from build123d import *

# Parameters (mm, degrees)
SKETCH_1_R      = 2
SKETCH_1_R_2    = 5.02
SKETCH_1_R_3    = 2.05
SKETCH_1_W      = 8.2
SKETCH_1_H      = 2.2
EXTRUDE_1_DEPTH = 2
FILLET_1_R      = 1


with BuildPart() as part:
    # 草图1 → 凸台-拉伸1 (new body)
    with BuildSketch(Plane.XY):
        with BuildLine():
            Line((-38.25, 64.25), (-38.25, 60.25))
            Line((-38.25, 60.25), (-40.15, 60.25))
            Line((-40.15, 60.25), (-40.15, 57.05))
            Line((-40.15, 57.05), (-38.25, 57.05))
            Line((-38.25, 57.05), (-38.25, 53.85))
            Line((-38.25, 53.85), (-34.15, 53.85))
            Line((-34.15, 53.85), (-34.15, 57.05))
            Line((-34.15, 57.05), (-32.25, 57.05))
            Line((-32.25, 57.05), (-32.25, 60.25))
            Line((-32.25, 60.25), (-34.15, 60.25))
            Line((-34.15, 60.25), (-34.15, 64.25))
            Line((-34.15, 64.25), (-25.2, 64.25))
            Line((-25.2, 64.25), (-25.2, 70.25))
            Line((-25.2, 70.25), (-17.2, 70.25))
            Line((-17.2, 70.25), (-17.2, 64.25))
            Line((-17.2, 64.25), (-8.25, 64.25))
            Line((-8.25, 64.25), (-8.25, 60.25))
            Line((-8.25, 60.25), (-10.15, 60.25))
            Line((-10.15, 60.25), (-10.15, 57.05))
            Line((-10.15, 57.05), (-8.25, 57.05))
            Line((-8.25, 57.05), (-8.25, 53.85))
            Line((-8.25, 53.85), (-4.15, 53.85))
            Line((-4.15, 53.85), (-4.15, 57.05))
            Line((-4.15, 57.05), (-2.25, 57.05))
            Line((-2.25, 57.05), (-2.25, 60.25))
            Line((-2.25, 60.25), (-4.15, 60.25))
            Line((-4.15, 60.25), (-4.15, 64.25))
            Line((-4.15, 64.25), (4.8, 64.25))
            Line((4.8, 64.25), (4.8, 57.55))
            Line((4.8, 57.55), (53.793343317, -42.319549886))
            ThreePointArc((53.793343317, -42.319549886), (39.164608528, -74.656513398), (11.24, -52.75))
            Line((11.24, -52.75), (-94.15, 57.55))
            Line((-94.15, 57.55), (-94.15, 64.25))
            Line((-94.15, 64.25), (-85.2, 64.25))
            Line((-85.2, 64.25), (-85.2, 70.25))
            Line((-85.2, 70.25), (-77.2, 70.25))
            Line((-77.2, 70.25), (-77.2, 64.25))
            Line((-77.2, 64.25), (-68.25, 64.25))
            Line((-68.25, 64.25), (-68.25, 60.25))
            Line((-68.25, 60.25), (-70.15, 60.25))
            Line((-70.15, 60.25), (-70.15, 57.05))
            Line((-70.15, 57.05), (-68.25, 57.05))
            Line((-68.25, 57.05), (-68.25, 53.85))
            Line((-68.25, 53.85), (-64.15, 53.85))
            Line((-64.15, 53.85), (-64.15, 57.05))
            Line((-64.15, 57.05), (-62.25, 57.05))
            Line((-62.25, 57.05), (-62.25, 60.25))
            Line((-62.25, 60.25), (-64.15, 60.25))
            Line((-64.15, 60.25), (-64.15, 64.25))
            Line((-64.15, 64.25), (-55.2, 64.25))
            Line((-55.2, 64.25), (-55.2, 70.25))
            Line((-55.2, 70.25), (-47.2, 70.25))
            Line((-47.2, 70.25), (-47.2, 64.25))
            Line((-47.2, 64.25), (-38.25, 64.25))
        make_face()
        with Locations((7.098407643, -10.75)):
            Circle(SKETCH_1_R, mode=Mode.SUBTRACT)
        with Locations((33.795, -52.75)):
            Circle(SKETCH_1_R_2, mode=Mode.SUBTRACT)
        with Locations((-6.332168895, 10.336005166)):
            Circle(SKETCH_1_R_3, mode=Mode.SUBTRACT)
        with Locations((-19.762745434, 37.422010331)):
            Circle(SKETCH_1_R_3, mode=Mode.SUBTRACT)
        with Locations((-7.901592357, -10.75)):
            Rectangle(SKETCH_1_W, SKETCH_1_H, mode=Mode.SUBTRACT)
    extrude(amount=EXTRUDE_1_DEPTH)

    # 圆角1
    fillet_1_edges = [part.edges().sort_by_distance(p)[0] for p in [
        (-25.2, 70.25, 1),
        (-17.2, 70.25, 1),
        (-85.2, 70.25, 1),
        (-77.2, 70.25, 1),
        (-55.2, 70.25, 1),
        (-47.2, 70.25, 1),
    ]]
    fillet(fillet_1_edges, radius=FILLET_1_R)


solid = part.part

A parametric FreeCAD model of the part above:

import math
import FreeCAD as App
import Part
import Sketcher


def edges_at(feature, points):
    """Names of the edges that pass closest to the given points."""
    edges = feature.Shape.Edges
    near = lambda p: min(range(len(edges)), key=lambda i: edges[i].distToShape(Part.Vertex(*p))[0])
    return sorted({f"Edge{near(p) + 1}" for p in points})

doc = App.newDocument("Part")
body = doc.addObject("PartDesign::Body", "Body")

# Sketch on XY plane
sketch1 = body.newObject("Sketcher::SketchObject", "Sketch")
sketch1.AttachmentSupport = (doc.getObject("XY_Plane"), [""])
sketch1.MapMode = "FlatFace"
sketch1.addGeometry([
    Part.LineSegment(App.Vector(-38.2, 60.2, 0), App.Vector(-38.2, 64.2, 0)),  # 0
    Part.LineSegment(App.Vector(-38.2, 64.2, 0), App.Vector(-47.2, 64.2, 0)),  # 1
    Part.LineSegment(App.Vector(-47.2, 64.2, 0), App.Vector(-47.2, 70.2, 0)),  # 2
    Part.LineSegment(App.Vector(-47.2, 70.2, 0), App.Vector(-55.2, 70.2, 0)),  # 3
    Part.LineSegment(App.Vector(-55.2, 70.2, 0), App.Vector(-55.2, 64.2, 0)),  # 4
    Part.LineSegment(App.Vector(-55.2, 64.2, 0), App.Vector(-64.2, 64.2, 0)),  # 5
    Part.LineSegment(App.Vector(-64.2, 64.2, 0), App.Vector(-64.2, 60.2, 0)),  # 6
    Part.LineSegment(App.Vector(-64.2, 60.2, 0), App.Vector(-62.2, 60.2, 0)),  # 7
    Part.LineSegment(App.Vector(-62.2, 60.2, 0), App.Vector(-62.2, 57, 0)),  # 8
    Part.LineSegment(App.Vector(-62.2, 57, 0), App.Vector(-64.2, 57, 0)),  # 9
    Part.LineSegment(App.Vector(-64.2, 57, 0), App.Vector(-64.2, 53.9, 0)),  # 10
    Part.LineSegment(App.Vector(-64.2, 53.9, 0), App.Vector(-68.2, 53.9, 0)),  # 11
    Part.LineSegment(App.Vector(-68.2, 53.9, 0), App.Vector(-68.2, 57, 0)),  # 12
    Part.LineSegment(App.Vector(-68.2, 57, 0), App.Vector(-70.2, 57, 0)),  # 13
    Part.LineSegment(App.Vector(-70.2, 57, 0), App.Vector(-70.2, 60.2, 0)),  # 14
    Part.LineSegment(App.Vector(-70.2, 60.2, 0), App.Vector(-68.2, 60.2, 0)),  # 15
    Part.LineSegment(App.Vector(-68.2, 60.2, 0), App.Vector(-68.2, 64.2, 0)),  # 16
    Part.LineSegment(App.Vector(-68.2, 64.2, 0), App.Vector(-77.2, 64.2, 0)),  # 17
    Part.LineSegment(App.Vector(-77.2, 64.2, 0), App.Vector(-77.2, 70.2, 0)),  # 18
    Part.LineSegment(App.Vector(-77.2, 70.2, 0), App.Vector(-85.2, 70.2, 0)),  # 19
    Part.LineSegment(App.Vector(-85.2, 70.2, 0), App.Vector(-85.2, 64.2, 0)),  # 20
    Part.LineSegment(App.Vector(-85.2, 64.2, 0), App.Vector(-94.2, 64.2, 0)),  # 21
    Part.LineSegment(App.Vector(-94.2, 64.2, 0), App.Vector(-94.2, 57.5, 0)),  # 22
    Part.LineSegment(App.Vector(-94.2, 57.5, 0), App.Vector(11.2, -52.8, 0)),  # 23
    Part.ArcOfCircle(Part.Circle(App.Vector(33.8, -52.8, 0), App.Vector(0, 0, 1), 22.6), math.radians(180), math.radians(388)),  # 24
    Part.LineSegment(App.Vector(53.8, -42.3, 0), App.Vector(4.8, 57.5, 0)),  # 25
    Part.LineSegment(App.Vector(4.8, 57.5, 0), App.Vector(4.8, 64.2, 0)),  # 26
    Part.LineSegment(App.Vector(4.8, 64.2, 0), App.Vector(-4.2, 64.2, 0)),  # 27
    Part.LineSegment(App.Vector(-4.2, 64.2, 0), App.Vector(-4.2, 60.2, 0)),  # 28
    Part.LineSegment(App.Vector(-4.2, 60.2, 0), App.Vector(-2.2, 60.2, 0)),  # 29
    Part.LineSegment(App.Vector(-2.2, 60.2, 0), App.Vector(-2.2, 57, 0)),  # 30
    Part.LineSegment(App.Vector(-2.2, 57, 0), App.Vector(-4.2, 57, 0)),  # 31
    Part.LineSegment(App.Vector(-4.2, 57, 0), App.Vector(-4.2, 53.9, 0)),  # 32
    Part.LineSegment(App.Vector(-4.2, 53.9, 0), App.Vector(-8.2, 53.9, 0)),  # 33
    Part.LineSegment(App.Vector(-8.2, 53.9, 0), App.Vector(-8.2, 57, 0)),  # 34
    Part.LineSegment(App.Vector(-8.2, 57, 0), App.Vector(-10.2, 57, 0)),  # 35
    Part.LineSegment(App.Vector(-10.2, 57, 0), App.Vector(-10.2, 60.2, 0)),  # 36
    Part.LineSegment(App.Vector(-10.2, 60.2, 0), App.Vector(-8.2, 60.2, 0)),  # 37
    Part.LineSegment(App.Vector(-8.2, 60.2, 0), App.Vector(-8.2, 64.2, 0)),  # 38
    Part.LineSegment(App.Vector(-8.2, 64.2, 0), App.Vector(-17.2, 64.2, 0)),  # 39
    Part.LineSegment(App.Vector(-17.2, 64.2, 0), App.Vector(-17.2, 70.2, 0)),  # 40
    Part.LineSegment(App.Vector(-17.2, 70.2, 0), App.Vector(-25.2, 70.2, 0)),  # 41
    Part.LineSegment(App.Vector(-25.2, 70.2, 0), App.Vector(-25.2, 64.2, 0)),  # 42
    Part.LineSegment(App.Vector(-25.2, 64.2, 0), App.Vector(-34.1, 64.2, 0)),  # 43
    Part.LineSegment(App.Vector(-34.1, 64.2, 0), App.Vector(-34.1, 60.2, 0)),  # 44
    Part.LineSegment(App.Vector(-34.1, 60.2, 0), App.Vector(-32.2, 60.2, 0)),  # 45
    Part.LineSegment(App.Vector(-32.2, 60.2, 0), App.Vector(-32.2, 57, 0)),  # 46
    Part.LineSegment(App.Vector(-32.2, 57, 0), App.Vector(-34.1, 57, 0)),  # 47
    Part.LineSegment(App.Vector(-34.1, 57, 0), App.Vector(-34.1, 53.9, 0)),  # 48
    Part.LineSegment(App.Vector(-34.1, 53.9, 0), App.Vector(-38.2, 53.9, 0)),  # 49
    Part.LineSegment(App.Vector(-38.2, 53.9, 0), App.Vector(-38.2, 57, 0)),  # 50
    Part.LineSegment(App.Vector(-38.2, 57, 0), App.Vector(-40.1, 57, 0)),  # 51
    Part.LineSegment(App.Vector(-40.1, 57, 0), App.Vector(-40.1, 60.2, 0)),  # 52
    Part.LineSegment(App.Vector(-40.1, 60.2, 0), App.Vector(-38.2, 60.2, 0)),  # 53
    Part.Circle(App.Vector(33.8, -52.8, 0), App.Vector(0, 0, 1), 5),  # 54
    Part.Circle(App.Vector(7.1, -10.8, 0), App.Vector(0, 0, 1), 2),  # 55
    Part.LineSegment(App.Vector(-12, -11.8, 0), App.Vector(-12, -9.7, 0)),  # 56
    Part.LineSegment(App.Vector(-12, -9.7, 0), App.Vector(-3.8, -9.7, 0)),  # 57
    Part.LineSegment(App.Vector(-3.8, -9.7, 0), App.Vector(-3.8, -11.8, 0)),  # 58
    Part.LineSegment(App.Vector(-3.8, -11.8, 0), App.Vector(-12, -11.8, 0)),  # 59
    Part.Circle(App.Vector(-6.3, 10.3, 0), App.Vector(0, 0, 1), 2),  # 60
    Part.Circle(App.Vector(-19.8, 37.4, 0), App.Vector(0, 0, 1), 2),  # 61
], False)
sketch1.addConstraint([
    Sketcher.Constraint("Coincident", 0, 2, 1, 1),
    Sketcher.Constraint("Coincident", 1, 2, 2, 1),
    Sketcher.Constraint("Coincident", 2, 2, 3, 1),
    Sketcher.Constraint("Coincident", 3, 2, 4, 1),
    Sketcher.Constraint("Coincident", 4, 2, 5, 1),
    Sketcher.Constraint("Coincident", 5, 2, 6, 1),
    Sketcher.Constraint("Coincident", 6, 2, 7, 1),
    Sketcher.Constraint("Coincident", 7, 2, 8, 1),
    Sketcher.Constraint("Coincident", 8, 2, 9, 1),
    Sketcher.Constraint("Coincident", 9, 2, 10, 1),
    Sketcher.Constraint("Coincident", 10, 2, 11, 1),
    Sketcher.Constraint("Coincident", 11, 2, 12, 1),
    Sketcher.Constraint("Coincident", 12, 2, 13, 1),
    Sketcher.Constraint("Coincident", 13, 2, 14, 1),
    Sketcher.Constraint("Coincident", 14, 2, 15, 1),
    Sketcher.Constraint("Coincident", 15, 2, 16, 1),
    Sketcher.Constraint("Coincident", 16, 2, 17, 1),
    Sketcher.Constraint("Coincident", 17, 2, 18, 1),
    Sketcher.Constraint("Coincident", 18, 2, 19, 1),
    Sketcher.Constraint("Coincident", 19, 2, 20, 1),
    Sketcher.Constraint("Coincident", 20, 2, 21, 1),
    Sketcher.Constraint("Coincident", 21, 2, 22, 1),
    Sketcher.Constraint("Coincident", 22, 2, 23, 1),
    Sketcher.Constraint("Coincident", 23, 2, 24, 1),
    Sketcher.Constraint("Coincident", 24, 2, 25, 1),
    Sketcher.Constraint("Coincident", 25, 2, 26, 1),
    Sketcher.Constraint("Coincident", 26, 2, 27, 1),
    Sketcher.Constraint("Coincident", 27, 2, 28, 1),
    Sketcher.Constraint("Coincident", 28, 2, 29, 1),
    Sketcher.Constraint("Coincident", 29, 2, 30, 1),
    Sketcher.Constraint("Coincident", 30, 2, 31, 1),
    Sketcher.Constraint("Coincident", 31, 2, 32, 1),
    Sketcher.Constraint("Coincident", 32, 2, 33, 1),
    Sketcher.Constraint("Coincident", 33, 2, 34, 1),
    Sketcher.Constraint("Coincident", 34, 2, 35, 1),
    Sketcher.Constraint("Coincident", 35, 2, 36, 1),
    Sketcher.Constraint("Coincident", 36, 2, 37, 1),
    Sketcher.Constraint("Coincident", 37, 2, 38, 1),
    Sketcher.Constraint("Coincident", 38, 2, 39, 1),
    Sketcher.Constraint("Coincident", 39, 2, 40, 1),
    Sketcher.Constraint("Coincident", 40, 2, 41, 1),
    Sketcher.Constraint("Coincident", 41, 2, 42, 1),
    Sketcher.Constraint("Coincident", 42, 2, 43, 1),
    Sketcher.Constraint("Coincident", 43, 2, 44, 1),
    Sketcher.Constraint("Coincident", 44, 2, 45, 1),
    Sketcher.Constraint("Coincident", 45, 2, 46, 1),
    Sketcher.Constraint("Coincident", 46, 2, 47, 1),
    Sketcher.Constraint("Coincident", 47, 2, 48, 1),
    Sketcher.Constraint("Coincident", 48, 2, 49, 1),
    Sketcher.Constraint("Coincident", 49, 2, 50, 1),
    Sketcher.Constraint("Coincident", 50, 2, 51, 1),
    Sketcher.Constraint("Coincident", 51, 2, 52, 1),
    Sketcher.Constraint("Coincident", 52, 2, 53, 1),
    Sketcher.Constraint("Coincident", 53, 2, 0, 1),
    Sketcher.Constraint("Coincident", 56, 2, 57, 1),
    Sketcher.Constraint("Coincident", 57, 2, 58, 1),
    Sketcher.Constraint("Coincident", 58, 2, 59, 1),
    Sketcher.Constraint("Coincident", 59, 2, 56, 1),
    Sketcher.Constraint("Vertical", 0),
    Sketcher.Constraint("Horizontal", 1),
    Sketcher.Constraint("Vertical", 2),
    Sketcher.Constraint("Horizontal", 3),
    Sketcher.Constraint("Vertical", 4),
    Sketcher.Constraint("Horizontal", 5),
    Sketcher.Constraint("Vertical", 6),
    Sketcher.Constraint("Horizontal", 7),
    Sketcher.Constraint("Vertical", 8),
    Sketcher.Constraint("Horizontal", 9),
    Sketcher.Constraint("Vertical", 10),
    Sketcher.Constraint("Horizontal", 11),
    Sketcher.Constraint("Vertical", 12),
    Sketcher.Constraint("Horizontal", 13),
    Sketcher.Constraint("Vertical", 14),
    Sketcher.Constraint("Horizontal", 15),
    Sketcher.Constraint("Vertical", 16),
    Sketcher.Constraint("Horizontal", 17),
    Sketcher.Constraint("Vertical", 18),
    Sketcher.Constraint("Horizontal", 19),
    Sketcher.Constraint("Vertical", 20),
    Sketcher.Constraint("Horizontal", 21),
    Sketcher.Constraint("Vertical", 22),
    Sketcher.Constraint("Vertical", 26),
    Sketcher.Constraint("Horizontal", 27),
    Sketcher.Constraint("Vertical", 28),
    Sketcher.Constraint("Horizontal", 29),
    Sketcher.Constraint("Vertical", 30),
    Sketcher.Constraint("Horizontal", 31),
    Sketcher.Constraint("Vertical", 32),
    Sketcher.Constraint("Horizontal", 33),
    Sketcher.Constraint("Vertical", 34),
    Sketcher.Constraint("Horizontal", 35),
    Sketcher.Constraint("Vertical", 36),
    Sketcher.Constraint("Horizontal", 37),
    Sketcher.Constraint("Vertical", 38),
    Sketcher.Constraint("Horizontal", 39),
    Sketcher.Constraint("Vertical", 40),
    Sketcher.Constraint("Horizontal", 41),
    Sketcher.Constraint("Vertical", 42),
    Sketcher.Constraint("Horizontal", 43),
    Sketcher.Constraint("Vertical", 44),
    Sketcher.Constraint("Horizontal", 45),
    Sketcher.Constraint("Vertical", 46),
    Sketcher.Constraint("Horizontal", 47),
    Sketcher.Constraint("Vertical", 48),
    Sketcher.Constraint("Horizontal", 49),
    Sketcher.Constraint("Vertical", 50),
    Sketcher.Constraint("Horizontal", 51),
    Sketcher.Constraint("Vertical", 52),
    Sketcher.Constraint("Horizontal", 53),
    Sketcher.Constraint("Vertical", 56),
    Sketcher.Constraint("Horizontal", 57),
    Sketcher.Constraint("Vertical", 58),
    Sketcher.Constraint("Horizontal", 59),
    Sketcher.Constraint("Coincident", 54, 3, 24, 3),
    Sketcher.Constraint("Equal", 60, 61),
    Sketcher.Constraint("Horizontal", 1, 2, 4, 2),
    Sketcher.Constraint("Horizontal", 9, 2, 12, 2),
    Sketcher.Constraint("Horizontal", 7, 2, 14, 2),
    Sketcher.Constraint("Horizontal", 5, 2, 16, 2),
    Sketcher.Constraint("Horizontal", 3, 2, 18, 2),
    Sketcher.Constraint("Horizontal", 17, 2, 20, 2),
    Sketcher.Constraint("Horizontal", 54, 3, 23, 2),
    Sketcher.Constraint("Horizontal", 22, 2, 25, 2),
    Sketcher.Constraint("Horizontal", 21, 2, 26, 2),
    Sketcher.Constraint("Horizontal", 15, 2, 28, 2),
    Sketcher.Constraint("Horizontal", 13, 2, 30, 2),
    Sketcher.Constraint("Horizontal", 11, 2, 32, 2),
    Sketcher.Constraint("Horizontal", 31, 2, 34, 2),
    Sketcher.Constraint("Horizontal", 29, 2, 36, 2),
    Sketcher.Constraint("Horizontal", 27, 2, 38, 2),
    Sketcher.Constraint("Horizontal", 19, 2, 40, 2),
    Sketcher.Constraint("Horizontal", 39, 2, 42, 2),
    Sketcher.Constraint("Horizontal", 37, 2, 44, 2),
    Sketcher.Constraint("Horizontal", 35, 2, 46, 2),
    Sketcher.Constraint("Horizontal", 33, 2, 48, 2),
    Sketcher.Constraint("Horizontal", 47, 2, 50, 2),
    Sketcher.Constraint("Horizontal", 45, 2, 52, 2),
    Sketcher.Constraint("Vertical", 6, 2, 9, 2),
    Sketcher.Constraint("Vertical", 12, 2, 15, 2),
    Sketcher.Constraint("Vertical", 28, 2, 31, 2),
    Sketcher.Constraint("Vertical", 34, 2, 37, 2),
    Sketcher.Constraint("Vertical", 44, 2, 47, 2),
    Sketcher.Constraint("Vertical", 0, 2, 49, 2),
    Sketcher.Constraint("Equal", 1, 5),
    Sketcher.Constraint("Equal", 9, 13),
    Sketcher.Constraint("Equal", 5, 17),
    Sketcher.Constraint("Equal", 3, 19),
    Sketcher.Constraint("Equal", 17, 21),
    Sketcher.Constraint("Equal", 21, 27),
    Sketcher.Constraint("Equal", 15, 29),
    Sketcher.Constraint("Equal", 11, 33),
    Sketcher.Constraint("Equal", 31, 35),
    Sketcher.Constraint("Equal", 27, 39),
    Sketcher.Constraint("Equal", 19, 41),
    Sketcher.Constraint("Equal", 39, 43),
    Sketcher.Constraint("Equal", 37, 45),
    Sketcher.Constraint("Equal", 33, 49),
    Sketcher.Constraint("Equal", 47, 51),
    Sketcher.Constraint("Equal", 8, 10),
    Sketcher.Constraint("Diameter", 55, 4.0),
    Sketcher.Constraint("Diameter", 60, 4.1),
    Sketcher.Constraint("Diameter", 54, 10.04),
    Sketcher.Constraint("DistanceX", 3, 2, 3, 1, 8.0),
    Sketcher.Constraint("DistanceY", 0, 1, 0, 2, 4.0),
    Sketcher.Constraint("DistanceY", 2, 1, 2, 2, 6.0),
    Sketcher.Constraint("DistanceX", 7, 1, 7, 2, 1.9),
    Sketcher.Constraint("DistanceX", 11, 2, 11, 1, 4.1),
    Sketcher.Constraint("DistanceX", 57, 1, 57, 2, 8.2),
    Sketcher.Constraint("DistanceY", 8, 2, 8, 1, 3.2),
    Sketcher.Constraint("DistanceY", 22, 2, 22, 1, 6.7),
    Sketcher.Constraint("DistanceY", 56, 1, 56, 2, 2.2),
    Sketcher.Constraint("Radius", 24, 22.555),
    Sketcher.Constraint("DistanceX", 1, 2, 1, 1, 8.95),
    Sketcher.Constraint("DistanceX", 1, 2, -1, 1, 47.2),
    Sketcher.Constraint("DistanceY", 24, 3, -1, 1, 52.75),
    Sketcher.Constraint("DistanceY", 55, 3, -1, 1, 10.75),
    Sketcher.Constraint("DistanceY", -1, 1, 0, 2, 64.25),
    Sketcher.Constraint("DistanceX", -1, 1, 23, 2, 11.24),
    Sketcher.Constraint("DistanceY", 56, 2, -1, 1, 9.65),
    Sketcher.Constraint("DistanceX", 60, 3, -1, 1, 6.332169),
    Sketcher.Constraint("DistanceY", -1, 1, 61, 3, 37.42201),
    Sketcher.Constraint("DistanceY", 24, 2, -1, 1, 42.31955),
    Sketcher.Constraint("DistanceX", -1, 1, 55, 3, 7.098408),
    Sketcher.Constraint("DistanceY", -1, 1, 60, 3, 10.336005),
    Sketcher.Constraint("DistanceX", 61, 3, -1, 1, 19.762745),
    Sketcher.Constraint("DistanceX", 56, 2, -1, 1, 12.001592),
])
pad1 = body.newObject("PartDesign::Pad", "Pad")
pad1.Profile = sketch1
pad1.Length = 2
doc.recompute()

fillet = body.newObject("PartDesign::Fillet", "Fillet")
fillet.Base = (pad1, edges_at(pad1, [
    (-25.2, 70.25, 1),
    (-17.2, 70.25, 1),
    (-85.2, 70.25, 1),
    (-77.2, 70.25, 1),
    (-55.2, 70.25, 1),
    (-47.2, 70.25, 1),
]))
fillet.Radius = 1

doc.recompute()
